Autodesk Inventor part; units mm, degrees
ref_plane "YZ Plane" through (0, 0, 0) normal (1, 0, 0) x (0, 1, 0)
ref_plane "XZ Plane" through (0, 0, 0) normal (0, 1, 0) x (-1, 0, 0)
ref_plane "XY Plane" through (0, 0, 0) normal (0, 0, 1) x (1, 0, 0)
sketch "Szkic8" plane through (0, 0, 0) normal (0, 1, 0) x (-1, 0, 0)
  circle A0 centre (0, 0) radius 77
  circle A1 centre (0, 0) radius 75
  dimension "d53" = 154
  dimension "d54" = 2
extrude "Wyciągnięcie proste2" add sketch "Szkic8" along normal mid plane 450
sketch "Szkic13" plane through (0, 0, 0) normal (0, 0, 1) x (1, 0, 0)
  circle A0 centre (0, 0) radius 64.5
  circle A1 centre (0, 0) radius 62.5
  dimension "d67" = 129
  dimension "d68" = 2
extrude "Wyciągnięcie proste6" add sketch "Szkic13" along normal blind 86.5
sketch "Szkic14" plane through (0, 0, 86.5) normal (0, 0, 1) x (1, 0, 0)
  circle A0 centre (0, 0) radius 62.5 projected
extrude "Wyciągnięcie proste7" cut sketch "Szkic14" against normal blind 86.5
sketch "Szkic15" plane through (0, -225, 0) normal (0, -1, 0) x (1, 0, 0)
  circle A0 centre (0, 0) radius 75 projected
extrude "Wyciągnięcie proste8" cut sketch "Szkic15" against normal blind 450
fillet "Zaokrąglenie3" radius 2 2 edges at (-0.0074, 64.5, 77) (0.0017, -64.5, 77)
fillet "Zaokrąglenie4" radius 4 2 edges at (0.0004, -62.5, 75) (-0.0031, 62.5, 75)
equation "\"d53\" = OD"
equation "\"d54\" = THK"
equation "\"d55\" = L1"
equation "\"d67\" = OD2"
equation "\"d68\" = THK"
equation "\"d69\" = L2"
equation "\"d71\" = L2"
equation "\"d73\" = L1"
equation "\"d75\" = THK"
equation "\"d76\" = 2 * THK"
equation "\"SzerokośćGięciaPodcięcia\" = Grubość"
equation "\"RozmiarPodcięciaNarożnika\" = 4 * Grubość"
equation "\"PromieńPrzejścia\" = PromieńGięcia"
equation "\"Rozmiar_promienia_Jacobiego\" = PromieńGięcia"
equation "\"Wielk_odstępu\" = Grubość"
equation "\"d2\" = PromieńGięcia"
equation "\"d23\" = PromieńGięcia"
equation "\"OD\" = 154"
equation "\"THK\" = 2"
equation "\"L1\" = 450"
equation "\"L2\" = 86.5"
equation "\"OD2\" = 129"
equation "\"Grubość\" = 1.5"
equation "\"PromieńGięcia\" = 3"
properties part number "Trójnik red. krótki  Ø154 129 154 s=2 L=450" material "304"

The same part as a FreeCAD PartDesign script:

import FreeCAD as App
import Part
import Sketcher
Q = App.Units.Quantity


def edges_at(feature, points):
    """Names of the edges that pass closest to the given points."""
    edges = feature.Shape.Edges
    near = lambda p: min(range(len(edges)), key=lambda i: edges[i].distToShape(Part.Vertex(*p))[0])
    return sorted({f"Edge{near(p) + 1}" for p in points})

doc = App.newDocument("Part")
body = doc.addObject("PartDesign::Body", "Body")

sketch1 = body.newObject("Sketcher::SketchObject", "Sketch")
sketch1.AttachmentSupport = (doc.getObject("XZ_Plane"), [""])
sketch1.MapMode = "FlatFace"
sketch1.addGeometry(Part.Circle(App.Vector(0, 0, 0), App.Vector(0, 0, 1), 77), False)
sketch1.addGeometry(Part.Circle(App.Vector(0, 0, 0), App.Vector(0, 0, 1), 75), False)
sketch1.addConstraint(Sketcher.Constraint("Coincident", 0, 3, -1, 1))
sketch1.addConstraint(Sketcher.Constraint("Coincident", 1, 3, -1, 1))
sketch1.addConstraint(Sketcher.Constraint("Diameter", 0, Q("154 mm")))
sketch1.addConstraint(Sketcher.Constraint("Diameter", 1, Q("150 mm")))
pad1 = body.newObject("PartDesign::Pad", "Pad")
pad1.Profile = sketch1
pad1.Length = 450
pad1.Midplane = True

sketch2 = body.newObject("Sketcher::SketchObject", "Sketch001")
sketch2.AttachmentSupport = (doc.getObject("XY_Plane"), [""])
sketch2.MapMode = "FlatFace"
sketch2.addGeometry(Part.Circle(App.Vector(0, 0, 0), App.Vector(0, 0, 1), 64.5), False)
sketch2.addGeometry(Part.Circle(App.Vector(0, 0, 0), App.Vector(0, 0, 1), 62.5), False)
sketch2.addConstraint(Sketcher.Constraint("Coincident", 0, 3, -1, 1))
sketch2.addConstraint(Sketcher.Constraint("Coincident", 1, 3, -1, 1))
sketch2.addConstraint(Sketcher.Constraint("Diameter", 0, Q("129 mm")))
sketch2.addConstraint(Sketcher.Constraint("Diameter", 1, Q("125 mm")))
pad2 = body.newObject("PartDesign::Pad", "Pad001")
pad2.Profile = sketch2
pad2.Length = 86.5

sketch3 = body.newObject("Sketcher::SketchObject", "Sketch002")
sketch3.AttachmentSupport = (doc.getObject("XY_Plane"), [""])
sketch3.MapMode = "FlatFace"
sketch3.AttachmentOffset = App.Placement(App.Vector(0, 0, 86.5), App.Rotation())
sketch3.addGeometry(Part.Circle(App.Vector(0, 0, 0), App.Vector(0, 0, 1), 62.5), False)
sketch3.addConstraint(Sketcher.Constraint("Coincident", 0, 3, -1, 1))
sketch3.addConstraint(Sketcher.Constraint("Diameter", 0, Q("125 mm")))
pocket1 = body.newObject("PartDesign::Pocket", "Pocket")
pocket1.Profile = sketch3
pocket1.Length = 86.5

sketch4 = body.newObject("Sketcher::SketchObject", "Sketch003")
sketch4.AttachmentSupport = (doc.getObject("XZ_Plane"), [""])
sketch4.MapMode = "FlatFace"
sketch4.AttachmentOffset = App.Placement(App.Vector(0, 0, 225), App.Rotation())
sketch4.addGeometry(Part.Circle(App.Vector(0, 0, 0), App.Vector(0, 0, 1), 75), False)
sketch4.addConstraint(Sketcher.Constraint("Coincident", 0, 3, -1, 1))
sketch4.addConstraint(Sketcher.Constraint("Diameter", 0, Q("150 mm")))
pocket2 = body.newObject("PartDesign::Pocket", "Pocket001")
pocket2.Profile = sketch4
pocket2.Length = 450
doc.recompute()

fillet = body.newObject("PartDesign::Fillet", "Fillet")
fillet.Base = (pocket2, edges_at(pocket2, [(-0.007, 64.5, 77), (0.002, -64.5, 77)]))
fillet.Radius = 2
doc.recompute()

fillet2 = body.newObject("PartDesign::Fillet", "Fillet001")
fillet2.Base = (fillet, edges_at(fillet, [(0, -62.5, 75), (-0.003, 62.5, 75)]))
fillet2.Radius = 4

doc.recompute()
